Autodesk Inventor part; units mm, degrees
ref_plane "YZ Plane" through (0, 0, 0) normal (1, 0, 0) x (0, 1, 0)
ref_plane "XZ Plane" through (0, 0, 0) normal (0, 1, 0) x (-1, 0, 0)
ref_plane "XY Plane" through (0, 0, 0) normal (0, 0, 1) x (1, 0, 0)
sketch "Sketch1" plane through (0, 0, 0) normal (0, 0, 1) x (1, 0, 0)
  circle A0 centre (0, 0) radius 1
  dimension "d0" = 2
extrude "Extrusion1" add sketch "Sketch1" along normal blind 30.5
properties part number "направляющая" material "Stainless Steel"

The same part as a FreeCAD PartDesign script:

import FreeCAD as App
import Part
import Sketcher
Q = App.Units.Quantity

doc = App.newDocument("Part")
body = doc.addObject("PartDesign::Body", "Body")

# Sketch on XY plane
sketch1 = body.newObject("Sketcher::SketchObject", "Sketch")
sketch1.AttachmentSupport = (doc.getObject("XY_Plane"), [""])
sketch1.MapMode = "FlatFace"
sketch1.addGeometry(Part.Circle(App.Vector(0, 0, 0), App.Vector(0, 0, 1), 1), False)
sketch1.addConstraint([
    Sketcher.Constraint("Coincident", 0, 3, -1, 1),
    Sketcher.Constraint("Diameter", 0, Q("2 mm")),
])
pad1 = body.newObject("PartDesign::Pad", "Pad")
pad1.Profile = sketch1
pad1.Length = 30.5

doc.recompute()
